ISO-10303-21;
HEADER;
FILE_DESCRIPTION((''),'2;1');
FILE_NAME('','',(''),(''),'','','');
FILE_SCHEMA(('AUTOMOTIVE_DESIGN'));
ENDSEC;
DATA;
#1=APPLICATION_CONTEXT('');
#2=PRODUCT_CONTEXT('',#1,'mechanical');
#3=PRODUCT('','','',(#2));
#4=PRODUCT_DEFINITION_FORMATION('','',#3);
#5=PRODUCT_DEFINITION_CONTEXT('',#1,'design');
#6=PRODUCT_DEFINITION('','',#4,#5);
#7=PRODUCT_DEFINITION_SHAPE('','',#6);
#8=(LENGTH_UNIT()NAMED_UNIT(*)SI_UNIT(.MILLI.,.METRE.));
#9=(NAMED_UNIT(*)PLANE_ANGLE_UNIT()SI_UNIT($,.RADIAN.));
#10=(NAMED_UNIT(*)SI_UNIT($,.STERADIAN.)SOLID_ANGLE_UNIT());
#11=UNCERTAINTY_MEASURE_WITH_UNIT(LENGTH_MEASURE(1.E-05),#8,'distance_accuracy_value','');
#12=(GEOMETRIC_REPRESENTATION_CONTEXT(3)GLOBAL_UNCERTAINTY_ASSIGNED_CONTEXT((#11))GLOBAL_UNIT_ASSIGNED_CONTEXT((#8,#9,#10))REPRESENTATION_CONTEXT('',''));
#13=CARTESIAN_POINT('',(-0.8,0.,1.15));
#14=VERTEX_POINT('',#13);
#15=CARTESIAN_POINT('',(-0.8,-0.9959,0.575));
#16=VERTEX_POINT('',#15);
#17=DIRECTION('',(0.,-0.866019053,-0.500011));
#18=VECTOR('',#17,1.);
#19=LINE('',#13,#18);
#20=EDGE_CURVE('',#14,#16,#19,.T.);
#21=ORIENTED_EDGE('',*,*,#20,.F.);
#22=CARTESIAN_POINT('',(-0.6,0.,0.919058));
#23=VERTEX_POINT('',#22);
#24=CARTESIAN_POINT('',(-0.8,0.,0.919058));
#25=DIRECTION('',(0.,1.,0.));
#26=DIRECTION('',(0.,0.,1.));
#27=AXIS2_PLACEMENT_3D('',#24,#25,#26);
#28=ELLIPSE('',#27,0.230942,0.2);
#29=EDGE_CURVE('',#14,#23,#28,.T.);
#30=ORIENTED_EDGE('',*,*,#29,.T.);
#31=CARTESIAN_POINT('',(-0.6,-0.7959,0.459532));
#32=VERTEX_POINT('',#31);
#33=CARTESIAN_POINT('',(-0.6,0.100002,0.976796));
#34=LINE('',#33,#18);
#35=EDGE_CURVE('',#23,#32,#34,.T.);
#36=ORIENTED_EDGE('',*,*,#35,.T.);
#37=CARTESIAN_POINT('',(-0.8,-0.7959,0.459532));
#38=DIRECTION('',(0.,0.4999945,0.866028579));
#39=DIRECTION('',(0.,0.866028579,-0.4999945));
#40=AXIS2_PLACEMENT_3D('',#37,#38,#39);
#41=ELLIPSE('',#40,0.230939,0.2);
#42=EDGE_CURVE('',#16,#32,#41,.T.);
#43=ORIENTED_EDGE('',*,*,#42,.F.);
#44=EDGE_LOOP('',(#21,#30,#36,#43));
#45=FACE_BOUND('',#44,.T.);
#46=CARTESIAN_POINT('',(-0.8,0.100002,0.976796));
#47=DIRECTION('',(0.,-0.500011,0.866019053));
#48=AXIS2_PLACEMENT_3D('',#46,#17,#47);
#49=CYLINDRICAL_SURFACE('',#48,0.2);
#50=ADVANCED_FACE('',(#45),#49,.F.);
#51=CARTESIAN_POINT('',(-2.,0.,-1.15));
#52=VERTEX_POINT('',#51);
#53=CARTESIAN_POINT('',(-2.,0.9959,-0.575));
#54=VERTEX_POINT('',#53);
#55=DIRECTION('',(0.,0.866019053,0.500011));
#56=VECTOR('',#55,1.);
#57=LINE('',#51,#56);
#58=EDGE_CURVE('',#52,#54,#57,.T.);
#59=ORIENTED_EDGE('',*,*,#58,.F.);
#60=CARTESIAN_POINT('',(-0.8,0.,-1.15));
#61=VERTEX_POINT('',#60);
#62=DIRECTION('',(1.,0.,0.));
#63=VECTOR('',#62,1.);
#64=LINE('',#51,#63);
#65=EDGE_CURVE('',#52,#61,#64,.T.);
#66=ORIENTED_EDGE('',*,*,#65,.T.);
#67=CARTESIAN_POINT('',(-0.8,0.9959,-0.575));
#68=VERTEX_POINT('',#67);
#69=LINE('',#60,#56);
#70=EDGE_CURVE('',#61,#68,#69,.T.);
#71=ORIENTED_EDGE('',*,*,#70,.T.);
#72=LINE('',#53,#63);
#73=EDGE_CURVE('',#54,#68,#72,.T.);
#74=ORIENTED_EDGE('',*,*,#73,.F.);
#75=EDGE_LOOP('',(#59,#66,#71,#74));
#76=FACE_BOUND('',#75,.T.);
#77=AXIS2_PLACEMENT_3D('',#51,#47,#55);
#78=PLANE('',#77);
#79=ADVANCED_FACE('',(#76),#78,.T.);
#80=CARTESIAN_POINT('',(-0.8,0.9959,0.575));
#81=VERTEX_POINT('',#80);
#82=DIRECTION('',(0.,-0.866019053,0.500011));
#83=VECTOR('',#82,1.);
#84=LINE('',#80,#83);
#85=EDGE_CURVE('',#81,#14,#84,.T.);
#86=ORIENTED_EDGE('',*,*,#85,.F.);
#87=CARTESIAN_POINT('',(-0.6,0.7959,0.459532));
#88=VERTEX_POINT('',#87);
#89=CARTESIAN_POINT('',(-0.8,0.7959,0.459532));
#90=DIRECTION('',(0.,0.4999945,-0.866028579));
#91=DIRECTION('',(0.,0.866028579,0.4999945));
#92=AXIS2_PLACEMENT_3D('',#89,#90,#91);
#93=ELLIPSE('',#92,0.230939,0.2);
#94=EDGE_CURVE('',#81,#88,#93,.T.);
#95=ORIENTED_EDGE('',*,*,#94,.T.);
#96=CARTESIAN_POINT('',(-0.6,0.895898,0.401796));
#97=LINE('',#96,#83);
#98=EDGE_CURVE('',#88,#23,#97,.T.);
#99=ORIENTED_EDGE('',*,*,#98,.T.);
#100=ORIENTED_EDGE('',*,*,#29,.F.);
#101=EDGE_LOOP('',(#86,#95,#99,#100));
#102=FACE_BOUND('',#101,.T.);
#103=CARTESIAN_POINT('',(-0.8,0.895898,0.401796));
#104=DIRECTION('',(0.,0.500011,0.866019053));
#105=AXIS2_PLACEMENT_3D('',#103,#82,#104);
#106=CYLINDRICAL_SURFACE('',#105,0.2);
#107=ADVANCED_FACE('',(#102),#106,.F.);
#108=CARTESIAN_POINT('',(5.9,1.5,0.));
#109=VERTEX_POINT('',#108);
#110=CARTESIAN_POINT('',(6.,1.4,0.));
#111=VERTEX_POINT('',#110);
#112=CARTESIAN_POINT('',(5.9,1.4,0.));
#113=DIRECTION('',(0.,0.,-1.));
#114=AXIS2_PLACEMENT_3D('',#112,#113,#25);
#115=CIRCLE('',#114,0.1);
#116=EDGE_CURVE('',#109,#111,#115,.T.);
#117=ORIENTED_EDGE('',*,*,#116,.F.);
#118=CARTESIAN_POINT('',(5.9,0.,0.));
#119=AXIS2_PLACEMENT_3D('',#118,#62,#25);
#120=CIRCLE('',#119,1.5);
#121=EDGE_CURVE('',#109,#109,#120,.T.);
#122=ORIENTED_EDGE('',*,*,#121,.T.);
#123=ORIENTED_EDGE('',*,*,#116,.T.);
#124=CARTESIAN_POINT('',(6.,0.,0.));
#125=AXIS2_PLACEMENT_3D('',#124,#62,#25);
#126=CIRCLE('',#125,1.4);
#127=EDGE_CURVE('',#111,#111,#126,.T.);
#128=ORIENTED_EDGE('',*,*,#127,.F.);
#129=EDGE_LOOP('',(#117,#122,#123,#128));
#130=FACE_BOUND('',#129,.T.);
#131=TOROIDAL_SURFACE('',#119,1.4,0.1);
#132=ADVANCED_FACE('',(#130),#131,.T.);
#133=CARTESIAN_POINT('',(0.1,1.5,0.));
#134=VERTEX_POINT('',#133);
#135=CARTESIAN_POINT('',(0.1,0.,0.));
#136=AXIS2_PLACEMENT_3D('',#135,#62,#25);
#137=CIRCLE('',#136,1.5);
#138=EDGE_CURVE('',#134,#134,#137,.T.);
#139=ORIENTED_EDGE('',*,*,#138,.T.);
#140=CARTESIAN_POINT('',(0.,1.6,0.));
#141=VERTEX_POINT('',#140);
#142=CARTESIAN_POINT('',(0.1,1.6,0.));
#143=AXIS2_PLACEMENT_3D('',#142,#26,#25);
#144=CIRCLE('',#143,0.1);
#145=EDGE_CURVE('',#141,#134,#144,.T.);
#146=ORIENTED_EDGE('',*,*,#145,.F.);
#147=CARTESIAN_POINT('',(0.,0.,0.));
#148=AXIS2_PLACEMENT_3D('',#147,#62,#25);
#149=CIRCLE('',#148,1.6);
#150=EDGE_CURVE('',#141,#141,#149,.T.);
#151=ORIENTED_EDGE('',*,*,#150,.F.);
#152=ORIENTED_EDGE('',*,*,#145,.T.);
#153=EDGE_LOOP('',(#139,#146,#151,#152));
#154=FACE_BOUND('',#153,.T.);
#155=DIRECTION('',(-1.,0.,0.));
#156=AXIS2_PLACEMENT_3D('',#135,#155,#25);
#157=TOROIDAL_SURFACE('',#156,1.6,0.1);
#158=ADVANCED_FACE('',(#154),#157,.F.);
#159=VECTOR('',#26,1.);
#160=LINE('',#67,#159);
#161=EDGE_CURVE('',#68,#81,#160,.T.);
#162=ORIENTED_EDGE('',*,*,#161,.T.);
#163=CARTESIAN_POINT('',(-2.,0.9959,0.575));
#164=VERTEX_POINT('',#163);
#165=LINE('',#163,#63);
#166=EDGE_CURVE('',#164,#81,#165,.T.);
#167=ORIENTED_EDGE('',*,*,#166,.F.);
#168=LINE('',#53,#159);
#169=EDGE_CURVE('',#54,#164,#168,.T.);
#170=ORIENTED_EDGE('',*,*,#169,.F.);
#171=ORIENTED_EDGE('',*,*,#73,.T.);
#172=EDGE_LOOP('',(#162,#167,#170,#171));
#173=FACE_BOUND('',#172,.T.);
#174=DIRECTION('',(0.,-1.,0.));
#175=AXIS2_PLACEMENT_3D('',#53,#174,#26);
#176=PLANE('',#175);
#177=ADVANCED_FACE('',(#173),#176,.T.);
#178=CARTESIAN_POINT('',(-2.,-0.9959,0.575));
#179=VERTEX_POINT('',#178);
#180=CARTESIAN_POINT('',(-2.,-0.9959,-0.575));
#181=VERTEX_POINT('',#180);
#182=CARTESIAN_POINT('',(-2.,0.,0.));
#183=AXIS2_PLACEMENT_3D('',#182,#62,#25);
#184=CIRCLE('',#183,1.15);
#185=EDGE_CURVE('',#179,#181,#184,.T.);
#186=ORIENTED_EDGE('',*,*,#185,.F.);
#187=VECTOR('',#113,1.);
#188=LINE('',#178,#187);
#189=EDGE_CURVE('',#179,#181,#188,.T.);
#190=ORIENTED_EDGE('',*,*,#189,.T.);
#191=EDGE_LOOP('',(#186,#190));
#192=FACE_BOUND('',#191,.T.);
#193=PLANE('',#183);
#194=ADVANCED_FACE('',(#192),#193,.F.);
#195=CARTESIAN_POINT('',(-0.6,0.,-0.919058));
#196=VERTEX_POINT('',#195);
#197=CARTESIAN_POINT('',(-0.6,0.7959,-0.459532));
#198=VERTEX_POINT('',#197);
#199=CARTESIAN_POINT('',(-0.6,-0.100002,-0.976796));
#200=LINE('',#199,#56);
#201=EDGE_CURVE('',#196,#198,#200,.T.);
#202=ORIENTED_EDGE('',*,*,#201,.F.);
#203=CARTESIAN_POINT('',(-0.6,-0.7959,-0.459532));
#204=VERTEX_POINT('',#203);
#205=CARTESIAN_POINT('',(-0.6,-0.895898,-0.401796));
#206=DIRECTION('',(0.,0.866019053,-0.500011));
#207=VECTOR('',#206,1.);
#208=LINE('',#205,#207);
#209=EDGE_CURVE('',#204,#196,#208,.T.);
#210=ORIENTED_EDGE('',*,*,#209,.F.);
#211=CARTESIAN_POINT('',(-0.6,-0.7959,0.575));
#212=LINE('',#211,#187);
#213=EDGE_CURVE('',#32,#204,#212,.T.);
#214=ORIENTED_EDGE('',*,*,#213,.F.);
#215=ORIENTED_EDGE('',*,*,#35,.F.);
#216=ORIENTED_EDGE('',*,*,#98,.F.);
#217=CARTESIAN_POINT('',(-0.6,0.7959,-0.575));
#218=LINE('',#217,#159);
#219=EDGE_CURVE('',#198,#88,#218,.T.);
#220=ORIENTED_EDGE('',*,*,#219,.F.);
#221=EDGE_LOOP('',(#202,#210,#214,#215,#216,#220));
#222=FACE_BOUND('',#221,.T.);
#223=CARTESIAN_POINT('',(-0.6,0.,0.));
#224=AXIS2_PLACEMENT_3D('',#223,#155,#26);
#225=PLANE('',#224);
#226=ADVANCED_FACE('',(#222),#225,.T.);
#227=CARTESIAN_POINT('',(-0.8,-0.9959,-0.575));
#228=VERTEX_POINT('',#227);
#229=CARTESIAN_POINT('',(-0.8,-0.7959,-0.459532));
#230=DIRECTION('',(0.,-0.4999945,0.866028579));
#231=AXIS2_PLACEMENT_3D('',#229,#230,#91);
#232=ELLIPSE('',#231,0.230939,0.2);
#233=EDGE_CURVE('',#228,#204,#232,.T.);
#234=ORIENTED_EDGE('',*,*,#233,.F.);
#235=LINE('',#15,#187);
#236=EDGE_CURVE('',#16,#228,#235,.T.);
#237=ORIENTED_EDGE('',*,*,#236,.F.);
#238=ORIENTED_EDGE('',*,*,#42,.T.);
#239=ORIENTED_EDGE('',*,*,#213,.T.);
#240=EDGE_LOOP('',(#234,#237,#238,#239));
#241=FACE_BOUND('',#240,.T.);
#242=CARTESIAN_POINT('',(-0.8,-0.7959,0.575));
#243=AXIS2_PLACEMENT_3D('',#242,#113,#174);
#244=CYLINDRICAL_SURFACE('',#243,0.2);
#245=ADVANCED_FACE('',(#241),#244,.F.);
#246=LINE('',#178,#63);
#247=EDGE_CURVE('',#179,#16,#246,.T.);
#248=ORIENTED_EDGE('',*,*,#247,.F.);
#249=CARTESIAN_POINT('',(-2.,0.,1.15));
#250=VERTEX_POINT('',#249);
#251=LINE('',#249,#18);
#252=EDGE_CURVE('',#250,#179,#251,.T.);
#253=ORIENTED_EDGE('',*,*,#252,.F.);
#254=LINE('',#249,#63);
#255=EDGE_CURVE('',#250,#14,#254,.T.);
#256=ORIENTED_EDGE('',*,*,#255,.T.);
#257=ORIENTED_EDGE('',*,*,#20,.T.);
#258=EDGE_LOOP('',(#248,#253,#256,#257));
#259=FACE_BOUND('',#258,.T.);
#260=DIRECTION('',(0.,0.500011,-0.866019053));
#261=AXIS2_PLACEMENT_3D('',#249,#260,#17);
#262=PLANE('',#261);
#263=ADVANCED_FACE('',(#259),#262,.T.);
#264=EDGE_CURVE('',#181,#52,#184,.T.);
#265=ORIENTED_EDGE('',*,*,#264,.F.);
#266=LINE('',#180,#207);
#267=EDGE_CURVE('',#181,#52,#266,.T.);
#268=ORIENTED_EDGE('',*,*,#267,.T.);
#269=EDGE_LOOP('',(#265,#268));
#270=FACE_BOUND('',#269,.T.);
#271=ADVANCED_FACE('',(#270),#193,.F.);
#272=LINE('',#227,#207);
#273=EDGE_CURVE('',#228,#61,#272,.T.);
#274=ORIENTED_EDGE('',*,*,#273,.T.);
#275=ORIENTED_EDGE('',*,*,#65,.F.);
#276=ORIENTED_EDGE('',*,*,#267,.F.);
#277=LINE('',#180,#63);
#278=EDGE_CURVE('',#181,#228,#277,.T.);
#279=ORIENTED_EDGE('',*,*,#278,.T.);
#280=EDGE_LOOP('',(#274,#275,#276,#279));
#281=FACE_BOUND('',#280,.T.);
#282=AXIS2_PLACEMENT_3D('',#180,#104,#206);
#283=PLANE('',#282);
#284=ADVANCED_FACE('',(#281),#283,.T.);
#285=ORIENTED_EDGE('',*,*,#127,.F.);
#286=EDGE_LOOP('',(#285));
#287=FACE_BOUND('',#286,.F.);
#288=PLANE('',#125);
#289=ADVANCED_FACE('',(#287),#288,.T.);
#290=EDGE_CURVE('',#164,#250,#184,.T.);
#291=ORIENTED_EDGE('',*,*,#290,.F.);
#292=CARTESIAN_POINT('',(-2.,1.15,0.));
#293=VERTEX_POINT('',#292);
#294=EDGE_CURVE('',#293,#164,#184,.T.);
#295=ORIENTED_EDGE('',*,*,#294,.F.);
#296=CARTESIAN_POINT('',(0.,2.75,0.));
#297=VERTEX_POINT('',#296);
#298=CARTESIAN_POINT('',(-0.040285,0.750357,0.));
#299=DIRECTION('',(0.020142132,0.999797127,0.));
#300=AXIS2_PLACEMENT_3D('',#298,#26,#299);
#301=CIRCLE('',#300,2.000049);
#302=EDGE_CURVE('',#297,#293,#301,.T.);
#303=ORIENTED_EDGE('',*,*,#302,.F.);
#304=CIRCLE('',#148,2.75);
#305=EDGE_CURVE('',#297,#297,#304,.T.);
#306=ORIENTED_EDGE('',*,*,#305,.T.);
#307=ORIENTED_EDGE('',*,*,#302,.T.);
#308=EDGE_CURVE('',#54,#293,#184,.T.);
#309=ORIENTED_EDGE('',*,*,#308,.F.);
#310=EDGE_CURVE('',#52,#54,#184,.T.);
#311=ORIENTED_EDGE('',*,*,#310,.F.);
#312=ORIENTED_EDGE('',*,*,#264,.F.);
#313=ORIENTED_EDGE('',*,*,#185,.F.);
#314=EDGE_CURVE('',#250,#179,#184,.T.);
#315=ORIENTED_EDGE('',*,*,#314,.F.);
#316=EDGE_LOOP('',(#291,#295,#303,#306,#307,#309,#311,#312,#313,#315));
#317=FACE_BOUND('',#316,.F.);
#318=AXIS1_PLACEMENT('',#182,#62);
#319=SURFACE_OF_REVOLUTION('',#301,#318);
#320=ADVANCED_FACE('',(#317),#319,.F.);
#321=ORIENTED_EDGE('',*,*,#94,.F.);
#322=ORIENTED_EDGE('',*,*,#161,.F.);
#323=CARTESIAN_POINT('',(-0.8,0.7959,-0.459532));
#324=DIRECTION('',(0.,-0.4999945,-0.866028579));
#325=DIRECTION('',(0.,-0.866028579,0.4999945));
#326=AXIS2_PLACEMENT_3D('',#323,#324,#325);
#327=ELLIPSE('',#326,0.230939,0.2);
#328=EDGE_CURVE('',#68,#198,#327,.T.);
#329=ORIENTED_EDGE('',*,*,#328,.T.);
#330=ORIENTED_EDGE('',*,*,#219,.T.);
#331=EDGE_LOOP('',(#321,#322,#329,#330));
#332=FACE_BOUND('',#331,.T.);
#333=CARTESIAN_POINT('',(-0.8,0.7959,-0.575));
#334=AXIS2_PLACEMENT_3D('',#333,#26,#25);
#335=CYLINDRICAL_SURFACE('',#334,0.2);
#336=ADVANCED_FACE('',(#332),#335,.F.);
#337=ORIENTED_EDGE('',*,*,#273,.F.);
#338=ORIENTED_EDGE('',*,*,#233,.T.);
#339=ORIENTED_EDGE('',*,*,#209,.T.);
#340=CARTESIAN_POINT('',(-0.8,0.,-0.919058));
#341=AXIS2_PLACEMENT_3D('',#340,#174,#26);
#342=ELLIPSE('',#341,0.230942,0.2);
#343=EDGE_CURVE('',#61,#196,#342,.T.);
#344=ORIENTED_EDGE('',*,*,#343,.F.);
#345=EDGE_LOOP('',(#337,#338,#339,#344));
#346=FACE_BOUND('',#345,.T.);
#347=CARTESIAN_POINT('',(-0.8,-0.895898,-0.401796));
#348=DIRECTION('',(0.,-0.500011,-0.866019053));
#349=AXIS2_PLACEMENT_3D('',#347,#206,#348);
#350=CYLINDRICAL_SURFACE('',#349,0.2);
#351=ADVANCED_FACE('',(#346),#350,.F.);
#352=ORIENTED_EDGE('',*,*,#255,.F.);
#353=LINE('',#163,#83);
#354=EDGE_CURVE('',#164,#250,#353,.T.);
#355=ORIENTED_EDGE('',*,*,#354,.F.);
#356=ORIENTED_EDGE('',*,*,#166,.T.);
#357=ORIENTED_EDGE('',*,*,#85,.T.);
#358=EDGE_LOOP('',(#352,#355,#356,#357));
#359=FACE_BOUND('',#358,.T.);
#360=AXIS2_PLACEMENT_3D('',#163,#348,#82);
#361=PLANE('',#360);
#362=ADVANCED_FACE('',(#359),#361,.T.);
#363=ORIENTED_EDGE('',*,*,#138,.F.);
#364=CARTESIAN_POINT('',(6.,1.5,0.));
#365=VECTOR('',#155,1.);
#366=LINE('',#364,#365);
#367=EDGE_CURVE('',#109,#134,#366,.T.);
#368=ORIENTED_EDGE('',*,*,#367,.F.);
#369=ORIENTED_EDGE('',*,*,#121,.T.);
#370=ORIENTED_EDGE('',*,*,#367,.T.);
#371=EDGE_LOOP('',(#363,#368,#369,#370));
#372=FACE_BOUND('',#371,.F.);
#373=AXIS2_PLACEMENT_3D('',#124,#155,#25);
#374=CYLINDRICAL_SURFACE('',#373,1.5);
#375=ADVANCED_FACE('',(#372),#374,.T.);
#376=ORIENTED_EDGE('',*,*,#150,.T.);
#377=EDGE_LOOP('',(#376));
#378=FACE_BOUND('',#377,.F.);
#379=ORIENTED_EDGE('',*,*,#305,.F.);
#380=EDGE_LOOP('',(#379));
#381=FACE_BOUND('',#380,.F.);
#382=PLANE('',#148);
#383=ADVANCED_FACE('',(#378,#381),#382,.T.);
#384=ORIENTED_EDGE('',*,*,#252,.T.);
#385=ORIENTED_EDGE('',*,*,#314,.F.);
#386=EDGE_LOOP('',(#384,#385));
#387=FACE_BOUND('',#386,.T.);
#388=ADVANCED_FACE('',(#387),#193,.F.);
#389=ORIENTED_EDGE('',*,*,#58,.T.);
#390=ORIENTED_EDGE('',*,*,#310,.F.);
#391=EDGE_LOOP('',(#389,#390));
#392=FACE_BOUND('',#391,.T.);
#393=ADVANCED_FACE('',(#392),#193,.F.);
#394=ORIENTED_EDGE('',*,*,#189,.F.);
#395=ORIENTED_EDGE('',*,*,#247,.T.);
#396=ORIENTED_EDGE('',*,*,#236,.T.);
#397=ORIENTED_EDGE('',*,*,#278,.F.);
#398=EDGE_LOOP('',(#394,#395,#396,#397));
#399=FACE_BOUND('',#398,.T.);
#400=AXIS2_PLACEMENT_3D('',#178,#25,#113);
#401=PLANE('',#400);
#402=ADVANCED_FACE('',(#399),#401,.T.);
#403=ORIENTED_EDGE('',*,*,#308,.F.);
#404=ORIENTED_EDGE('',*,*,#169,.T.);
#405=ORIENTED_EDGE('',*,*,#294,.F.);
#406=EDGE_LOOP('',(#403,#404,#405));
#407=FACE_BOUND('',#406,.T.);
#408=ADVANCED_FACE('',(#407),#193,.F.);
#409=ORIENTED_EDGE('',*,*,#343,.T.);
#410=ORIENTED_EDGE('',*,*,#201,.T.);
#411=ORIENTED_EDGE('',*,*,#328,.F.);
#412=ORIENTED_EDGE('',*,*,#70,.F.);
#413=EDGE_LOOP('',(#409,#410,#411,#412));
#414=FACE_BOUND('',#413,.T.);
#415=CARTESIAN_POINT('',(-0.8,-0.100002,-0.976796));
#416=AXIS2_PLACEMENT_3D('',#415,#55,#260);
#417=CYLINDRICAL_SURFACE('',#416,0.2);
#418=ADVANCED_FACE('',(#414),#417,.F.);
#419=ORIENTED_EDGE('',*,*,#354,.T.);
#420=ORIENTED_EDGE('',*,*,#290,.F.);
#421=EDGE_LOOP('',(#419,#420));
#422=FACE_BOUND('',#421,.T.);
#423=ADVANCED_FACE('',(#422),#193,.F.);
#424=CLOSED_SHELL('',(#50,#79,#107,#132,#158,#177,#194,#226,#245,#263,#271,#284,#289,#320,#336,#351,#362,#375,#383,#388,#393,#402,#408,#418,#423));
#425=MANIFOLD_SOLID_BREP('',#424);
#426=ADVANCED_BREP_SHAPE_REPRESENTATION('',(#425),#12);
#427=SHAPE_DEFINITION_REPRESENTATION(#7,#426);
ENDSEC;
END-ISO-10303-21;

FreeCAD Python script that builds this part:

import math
import FreeCAD as App
import Part
import Sketcher

V = App.Vector


def edges_at(feature, points):
    """Names of the edges that pass closest to the given points."""
    edges = feature.Shape.Edges
    near = lambda p: min(range(len(edges)), key=lambda i: edges[i].distToShape(Part.Vertex(*p))[0])
    return sorted({f"Edge{near(p) + 1}" for p in points})

doc = App.newDocument("Part")
params = doc.addObject("Spreadsheet::Sheet", "Params")
for row, (alias, value) in enumerate([
    ("sketch1_radius", "2 mm"),
    ("sketch1_width", "6 mm"),
    ("sketch1_height", "1.5 mm"),
    ("sketch1_height2", "1.15 mm"),
    ("revolution_angle", "360 deg"),
    ("sketch2_height", "1.15 mm"),
    ("sketch2_length", "1.15 mm"),
    ("pocket1_length", "1.4 mm"),
    ("fillet_radius", "0.2 mm"),
    ("fillet2_radius", "0.1 mm"),
    ("fillet3_radius", "0.1 mm"),
], start=1):
    params.set(f"A{row}", alias)
    params.set(f"B{row}", "=" + value)
    params.setAlias(f"B{row}", alias)

body = doc.addObject("PartDesign::Body", "Body")

# Sketch on XY plane
sketch1 = body.newObject("Sketcher::SketchObject", "Sketch")
sketch1.AttachmentSupport = (doc.getObject("XY_Plane"), [""])
sketch1.MapMode = "FlatFace"
sketch1.addGeometry([
    Part.LineSegment(V(6, 1.5, 0), V(0, 1.5, 0)),  # 0
    Part.LineSegment(V(0, 1.5, 0), V(0, 2.75, 0)),  # 1
    Part.ArcOfCircle(Part.Circle(V(-0.0403, 0.7504, 0), V(0, 0, 1), 2.000006), math.radians(88.845415), math.radians(168.474888)),  # 2
    Part.LineSegment(V(-2, 1.15, 0), V(-2, 0, 0)),  # 3
    Part.LineSegment(V(-2, 0, 0), V(6, 0, 0)),  # 4
    Part.LineSegment(V(6, 0, 0), V(6, 1.5, 0)),  # 5
], False)
sketch1.addConstraint([
    Sketcher.Constraint("Coincident", 0, 2, 1, 1),
    Sketcher.Constraint("Coincident", 1, 2, 2, 1),
    Sketcher.Constraint("Coincident", 2, 2, 3, 1),
    Sketcher.Constraint("Coincident", 3, 2, 4, 1),
    Sketcher.Constraint("Coincident", 4, 2, 5, 1),
    Sketcher.Constraint("Coincident", 5, 2, 0, 1),
    Sketcher.Constraint("Horizontal", 0),
    Sketcher.Constraint("Vertical", 1),
    Sketcher.Constraint("Vertical", 3),
    Sketcher.Constraint("Horizontal", 4),
    Sketcher.Constraint("Vertical", 5),
    Sketcher.Constraint("PointOnObject", 0, 2, -2),
    Sketcher.Constraint("PointOnObject", 3, 2, -1),
    Sketcher.Constraint("Radius", 2, 2.0),
    Sketcher.Constraint("DistanceX", 0, 2, 0, 1, 6.0),
    Sketcher.Constraint("DistanceY", 5, 1, 5, 2, 1.5),
    Sketcher.Constraint("DistanceX", 2, 2, -1, 1, 2.0),
    Sketcher.Constraint("DistanceY", 3, 2, 3, 1, 1.15),
    Sketcher.Constraint("DistanceY", -1, 1, 1, 2, 2.75),
])
sketch1.setExpression("Constraints[13]", "Params.sketch1_radius")
sketch1.setExpression("Constraints[14]", "Params.sketch1_width")
sketch1.setExpression("Constraints[15]", "Params.sketch1_height")
sketch1.setExpression("Constraints[17]", "Params.sketch1_height2")
revolution = body.newObject("PartDesign::Revolution", "Revolution")
revolution.Profile = sketch1
revolution.ReferenceAxis = (sketch1, ["H_Axis"])
revolution.setExpression("Angle", "Params.revolution_angle")

# Sketch on YZ plane
sketch2 = body.newObject("Sketcher::SketchObject", "Sketch001")
sketch2.AttachmentSupport = (doc.getObject("YZ_Plane"), [""])
sketch2.MapMode = "FlatFace"
sketch2.AttachmentOffset = App.Placement(V(0, 0, -2), App.Rotation())
sketch2.addGeometry([
    Part.LineSegment(V(-0.9959, 0.575, 0), V(0, 1.15, 0)),  # 0
    Part.LineSegment(V(0, 1.15, 0), V(0.9959, 0.575, 0)),  # 1
    Part.LineSegment(V(0.9959, 0.575, 0), V(0.9959, -0.575, 0)),  # 2
    Part.LineSegment(V(0.9959, -0.575, 0), V(0, -1.15, 0)),  # 3
    Part.LineSegment(V(0, -1.15, 0), V(-0.9959, -0.575, 0)),  # 4
    Part.LineSegment(V(-0.9959, -0.575, 0), V(-0.9959, 0.575, 0)),  # 5
], False)
sketch2.addConstraint([
    Sketcher.Constraint("Coincident", 0, 2, 1, 1),
    Sketcher.Constraint("Coincident", 1, 2, 2, 1),
    Sketcher.Constraint("Coincident", 2, 2, 3, 1),
    Sketcher.Constraint("Coincident", 3, 2, 4, 1),
    Sketcher.Constraint("Coincident", 4, 2, 5, 1),
    Sketcher.Constraint("Coincident", 5, 2, 0, 1),
    Sketcher.Constraint("Vertical", 2),
    Sketcher.Constraint("Vertical", 5),
    Sketcher.Constraint("Symmetric", 0, 2, 3, 2, -1, 1),
    Sketcher.Constraint("Symmetric", 1, 2, 4, 2, -1, 1),
    Sketcher.Constraint("PointOnObject", 0, 2, -2),
    Sketcher.Constraint("Parallel", 0, 3),
    Sketcher.Constraint("Horizontal", 2, 2, 4, 2),
    Sketcher.Constraint("DistanceY", 2, 2, 2, 1, 1.15),
    Sketcher.Constraint("Distance", 0, 1.15),
    Sketcher.Constraint("DistanceY", -1, 1, 0, 2, 1.15),
])
sketch2.setExpression("Constraints[13]", "Params.sketch2_height")
sketch2.setExpression("Constraints[14]", "Params.sketch2_length")
pocket1 = body.newObject("PartDesign::Pocket", "Pocket")
pocket1.Profile = sketch2
pocket1.setExpression("Length", "Params.pocket1_length")
pocket1.Reversed = True
doc.recompute()

fillet = body.newObject("PartDesign::Fillet", "Fillet")
fillet.Base = (pocket1, edges_at(pocket1, [
    (-0.6, 0.996, 0),
    (-0.6, 0.498, 0.863),
    (-0.6, 0.498, -0.863),
    (-0.6, -0.498, -0.863),
    (-0.6, -0.996, 0),
    (-0.6, -0.498, 0.863),
]))
fillet.setExpression("Radius", "Params.fillet_radius")
doc.recompute()

fillet2 = body.newObject("PartDesign::Fillet", "Fillet001")
fillet2.Base = (fillet, edges_at(fillet, [(0, -1.5, 0)]))
fillet2.setExpression("Radius", "Params.fillet2_radius")
doc.recompute()

fillet3 = body.newObject("PartDesign::Fillet", "Fillet002")
fillet3.Base = (fillet2, edges_at(fillet2, [(6, -1.5, 0)]))
fillet3.setExpression("Radius", "Params.fillet3_radius")

doc.recompute()
